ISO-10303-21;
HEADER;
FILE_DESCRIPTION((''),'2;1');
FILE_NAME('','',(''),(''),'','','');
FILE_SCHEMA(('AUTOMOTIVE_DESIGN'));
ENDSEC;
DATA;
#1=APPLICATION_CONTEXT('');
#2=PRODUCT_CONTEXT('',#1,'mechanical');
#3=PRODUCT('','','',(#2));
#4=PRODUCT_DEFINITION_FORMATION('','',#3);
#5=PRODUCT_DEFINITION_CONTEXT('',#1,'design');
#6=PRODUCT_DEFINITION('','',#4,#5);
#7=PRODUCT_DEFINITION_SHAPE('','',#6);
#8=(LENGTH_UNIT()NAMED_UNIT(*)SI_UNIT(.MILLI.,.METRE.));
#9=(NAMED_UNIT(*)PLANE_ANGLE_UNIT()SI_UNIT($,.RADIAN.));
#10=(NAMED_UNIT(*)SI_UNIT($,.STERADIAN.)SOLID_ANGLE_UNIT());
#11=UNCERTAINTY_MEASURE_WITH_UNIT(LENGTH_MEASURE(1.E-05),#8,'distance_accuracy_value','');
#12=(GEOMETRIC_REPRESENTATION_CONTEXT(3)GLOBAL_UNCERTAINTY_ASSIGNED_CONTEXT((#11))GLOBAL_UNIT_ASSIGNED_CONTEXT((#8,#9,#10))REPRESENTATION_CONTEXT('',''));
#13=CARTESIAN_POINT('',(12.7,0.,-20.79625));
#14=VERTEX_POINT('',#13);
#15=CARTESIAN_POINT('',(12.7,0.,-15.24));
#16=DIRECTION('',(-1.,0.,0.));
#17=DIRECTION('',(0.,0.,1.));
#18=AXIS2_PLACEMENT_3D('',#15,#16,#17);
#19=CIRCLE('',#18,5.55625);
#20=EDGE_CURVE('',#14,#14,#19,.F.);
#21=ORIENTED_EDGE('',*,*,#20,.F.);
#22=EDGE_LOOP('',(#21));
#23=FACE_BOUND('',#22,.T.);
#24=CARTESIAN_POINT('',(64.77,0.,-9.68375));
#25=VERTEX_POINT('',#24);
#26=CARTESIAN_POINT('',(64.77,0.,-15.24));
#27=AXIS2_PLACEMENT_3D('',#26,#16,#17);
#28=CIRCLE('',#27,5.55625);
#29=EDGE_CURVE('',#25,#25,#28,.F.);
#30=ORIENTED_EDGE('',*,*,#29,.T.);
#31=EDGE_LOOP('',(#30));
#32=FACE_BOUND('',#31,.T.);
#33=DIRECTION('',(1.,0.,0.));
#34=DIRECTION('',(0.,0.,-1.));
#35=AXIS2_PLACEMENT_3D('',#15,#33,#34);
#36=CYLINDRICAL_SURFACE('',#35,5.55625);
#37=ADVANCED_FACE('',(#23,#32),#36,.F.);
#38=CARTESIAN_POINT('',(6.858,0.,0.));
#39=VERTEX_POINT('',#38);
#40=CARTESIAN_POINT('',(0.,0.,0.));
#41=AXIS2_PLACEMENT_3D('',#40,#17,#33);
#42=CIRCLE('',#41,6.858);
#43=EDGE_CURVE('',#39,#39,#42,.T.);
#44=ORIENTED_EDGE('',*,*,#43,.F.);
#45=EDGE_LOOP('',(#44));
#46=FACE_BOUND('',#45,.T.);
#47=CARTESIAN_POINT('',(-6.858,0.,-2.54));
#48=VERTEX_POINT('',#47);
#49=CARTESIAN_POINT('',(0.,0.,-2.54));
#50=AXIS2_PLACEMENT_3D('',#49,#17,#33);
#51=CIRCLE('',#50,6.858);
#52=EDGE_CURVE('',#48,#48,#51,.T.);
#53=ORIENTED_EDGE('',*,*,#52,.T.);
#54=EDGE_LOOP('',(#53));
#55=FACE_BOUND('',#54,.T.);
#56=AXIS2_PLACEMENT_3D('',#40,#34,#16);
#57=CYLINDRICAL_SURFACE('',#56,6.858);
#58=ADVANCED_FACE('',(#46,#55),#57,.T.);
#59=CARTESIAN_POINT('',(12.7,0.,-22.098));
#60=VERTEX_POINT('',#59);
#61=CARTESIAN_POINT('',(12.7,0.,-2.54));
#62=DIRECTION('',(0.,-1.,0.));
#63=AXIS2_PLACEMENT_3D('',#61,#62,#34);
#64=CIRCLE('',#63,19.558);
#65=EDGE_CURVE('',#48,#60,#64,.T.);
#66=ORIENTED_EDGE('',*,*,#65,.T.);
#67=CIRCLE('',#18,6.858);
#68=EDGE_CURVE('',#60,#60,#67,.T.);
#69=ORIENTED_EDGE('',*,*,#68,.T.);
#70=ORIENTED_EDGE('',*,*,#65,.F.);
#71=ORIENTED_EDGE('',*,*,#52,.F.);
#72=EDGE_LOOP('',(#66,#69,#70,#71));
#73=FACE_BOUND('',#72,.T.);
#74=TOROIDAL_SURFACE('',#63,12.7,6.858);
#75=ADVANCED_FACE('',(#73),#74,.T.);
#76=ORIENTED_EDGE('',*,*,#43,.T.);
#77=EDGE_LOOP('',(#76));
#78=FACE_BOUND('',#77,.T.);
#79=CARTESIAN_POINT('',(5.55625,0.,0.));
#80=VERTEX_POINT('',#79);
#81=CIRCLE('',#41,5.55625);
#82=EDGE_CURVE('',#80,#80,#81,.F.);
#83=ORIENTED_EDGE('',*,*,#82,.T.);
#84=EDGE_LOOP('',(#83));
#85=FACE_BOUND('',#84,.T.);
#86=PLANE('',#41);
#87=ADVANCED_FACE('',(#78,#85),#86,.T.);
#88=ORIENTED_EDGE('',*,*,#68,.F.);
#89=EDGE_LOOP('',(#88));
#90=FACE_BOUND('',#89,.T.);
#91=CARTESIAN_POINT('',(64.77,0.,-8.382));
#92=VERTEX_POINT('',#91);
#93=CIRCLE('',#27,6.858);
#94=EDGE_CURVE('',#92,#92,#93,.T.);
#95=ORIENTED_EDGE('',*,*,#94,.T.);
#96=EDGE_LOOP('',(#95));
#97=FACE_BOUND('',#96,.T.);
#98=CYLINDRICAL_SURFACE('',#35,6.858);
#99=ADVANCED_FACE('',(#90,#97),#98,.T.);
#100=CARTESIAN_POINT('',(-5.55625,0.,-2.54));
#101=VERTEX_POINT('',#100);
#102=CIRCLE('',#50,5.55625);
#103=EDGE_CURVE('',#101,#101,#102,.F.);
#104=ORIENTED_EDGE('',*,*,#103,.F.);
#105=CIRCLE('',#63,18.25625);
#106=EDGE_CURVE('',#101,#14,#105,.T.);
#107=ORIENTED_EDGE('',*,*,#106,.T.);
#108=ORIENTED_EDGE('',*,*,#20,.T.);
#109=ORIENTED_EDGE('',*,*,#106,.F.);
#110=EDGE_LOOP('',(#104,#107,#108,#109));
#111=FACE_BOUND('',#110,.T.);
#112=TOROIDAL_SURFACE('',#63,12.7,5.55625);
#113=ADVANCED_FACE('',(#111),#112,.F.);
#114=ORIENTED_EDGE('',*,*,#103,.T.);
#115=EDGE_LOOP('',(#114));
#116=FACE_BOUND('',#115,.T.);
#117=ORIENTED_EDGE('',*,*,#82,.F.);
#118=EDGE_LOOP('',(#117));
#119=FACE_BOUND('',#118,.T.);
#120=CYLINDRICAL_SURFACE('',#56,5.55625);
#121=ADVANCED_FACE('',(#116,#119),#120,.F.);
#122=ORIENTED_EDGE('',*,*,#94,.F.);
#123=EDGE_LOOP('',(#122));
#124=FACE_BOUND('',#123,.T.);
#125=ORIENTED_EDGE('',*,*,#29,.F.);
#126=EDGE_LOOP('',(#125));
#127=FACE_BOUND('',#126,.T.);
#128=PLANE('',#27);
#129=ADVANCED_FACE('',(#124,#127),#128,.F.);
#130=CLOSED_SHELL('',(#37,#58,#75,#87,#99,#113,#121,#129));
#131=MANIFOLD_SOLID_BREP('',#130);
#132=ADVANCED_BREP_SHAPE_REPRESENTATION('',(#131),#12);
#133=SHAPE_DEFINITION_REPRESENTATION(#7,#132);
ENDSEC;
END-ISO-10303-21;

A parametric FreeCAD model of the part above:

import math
import FreeCAD as App
import Part
import Sketcher
from FreeCAD import Vector
Q = App.Units.Quantity

doc = App.newDocument("Part")
body = doc.addObject("PartDesign::Body", "Body")

# Sketch on XY plane
sketch1 = body.newObject("Sketcher::SketchObject", "Sketch")
sketch1.AttachmentSupport = (doc.getObject("XY_Plane"), [""])
sketch1.MapMode = "FlatFace"
sketch1.addGeometry([
    Part.Circle(Vector(0, 0, 0), Vector(0, 0, 1), 7),
    Part.Circle(Vector(0, 0, 0), Vector(0, 0, 1), 6),
], False)
sketch1.addConstraint([
    Sketcher.Constraint("Coincident", 0, 3, -1, 1),
    Sketcher.Constraint("Coincident", 1, 3, -1, 1),
    Sketcher.Constraint("Diameter", 0, Q("0.54 in")),
    Sketcher.Constraint("Diameter", 1, Q("0.4375 in")),
])

# Sketch on XZ plane
sketch2 = body.newObject("Sketcher::SketchObject", "Sketch001")
sketch2.AttachmentSupport = (doc.getObject("XZ_Plane"), [""])
sketch2.MapMode = "FlatFace"
sketch2.addGeometry([
    Part.LineSegment(Vector(0, 0, 0), Vector(0, -2.5, 0)),
    Part.ArcOfCircle(Part.Circle(Vector(12.7, -2.5, 0), Vector(0, 0, 1), 12.7), math.radians(180), math.radians(270)),
    Part.LineSegment(Vector(12.7, -15.2, 0), Vector(64.8, -15.2, 0)),
], False)
sketch2.addConstraint([
    Sketcher.Constraint("Tangent", 0, 2, 1, 1),
    Sketcher.Constraint("Tangent", 1, 2, 2, 1),
    Sketcher.Constraint("Vertical", 0),
    Sketcher.Constraint("Horizontal", 2),
    Sketcher.Constraint("Coincident", 0, 1, -1, 1),
    Sketcher.Constraint("Radius", 1, Q("0.5 in")),
    Sketcher.Constraint("DistanceY", 0, 2, 0, 1, Q("0.1 in")),
    Sketcher.Constraint("DistanceX", 2, 1, 2, 2, Q("2.05 in")),
])
doc.recompute()

additivepipe = body.newObject("PartDesign::AdditivePipe", "AdditivePipe")
additivepipe.Profile = sketch1
additivepipe.Spine = (sketch2, ["Edge1", "Edge2", "Edge3"])

doc.recompute()
